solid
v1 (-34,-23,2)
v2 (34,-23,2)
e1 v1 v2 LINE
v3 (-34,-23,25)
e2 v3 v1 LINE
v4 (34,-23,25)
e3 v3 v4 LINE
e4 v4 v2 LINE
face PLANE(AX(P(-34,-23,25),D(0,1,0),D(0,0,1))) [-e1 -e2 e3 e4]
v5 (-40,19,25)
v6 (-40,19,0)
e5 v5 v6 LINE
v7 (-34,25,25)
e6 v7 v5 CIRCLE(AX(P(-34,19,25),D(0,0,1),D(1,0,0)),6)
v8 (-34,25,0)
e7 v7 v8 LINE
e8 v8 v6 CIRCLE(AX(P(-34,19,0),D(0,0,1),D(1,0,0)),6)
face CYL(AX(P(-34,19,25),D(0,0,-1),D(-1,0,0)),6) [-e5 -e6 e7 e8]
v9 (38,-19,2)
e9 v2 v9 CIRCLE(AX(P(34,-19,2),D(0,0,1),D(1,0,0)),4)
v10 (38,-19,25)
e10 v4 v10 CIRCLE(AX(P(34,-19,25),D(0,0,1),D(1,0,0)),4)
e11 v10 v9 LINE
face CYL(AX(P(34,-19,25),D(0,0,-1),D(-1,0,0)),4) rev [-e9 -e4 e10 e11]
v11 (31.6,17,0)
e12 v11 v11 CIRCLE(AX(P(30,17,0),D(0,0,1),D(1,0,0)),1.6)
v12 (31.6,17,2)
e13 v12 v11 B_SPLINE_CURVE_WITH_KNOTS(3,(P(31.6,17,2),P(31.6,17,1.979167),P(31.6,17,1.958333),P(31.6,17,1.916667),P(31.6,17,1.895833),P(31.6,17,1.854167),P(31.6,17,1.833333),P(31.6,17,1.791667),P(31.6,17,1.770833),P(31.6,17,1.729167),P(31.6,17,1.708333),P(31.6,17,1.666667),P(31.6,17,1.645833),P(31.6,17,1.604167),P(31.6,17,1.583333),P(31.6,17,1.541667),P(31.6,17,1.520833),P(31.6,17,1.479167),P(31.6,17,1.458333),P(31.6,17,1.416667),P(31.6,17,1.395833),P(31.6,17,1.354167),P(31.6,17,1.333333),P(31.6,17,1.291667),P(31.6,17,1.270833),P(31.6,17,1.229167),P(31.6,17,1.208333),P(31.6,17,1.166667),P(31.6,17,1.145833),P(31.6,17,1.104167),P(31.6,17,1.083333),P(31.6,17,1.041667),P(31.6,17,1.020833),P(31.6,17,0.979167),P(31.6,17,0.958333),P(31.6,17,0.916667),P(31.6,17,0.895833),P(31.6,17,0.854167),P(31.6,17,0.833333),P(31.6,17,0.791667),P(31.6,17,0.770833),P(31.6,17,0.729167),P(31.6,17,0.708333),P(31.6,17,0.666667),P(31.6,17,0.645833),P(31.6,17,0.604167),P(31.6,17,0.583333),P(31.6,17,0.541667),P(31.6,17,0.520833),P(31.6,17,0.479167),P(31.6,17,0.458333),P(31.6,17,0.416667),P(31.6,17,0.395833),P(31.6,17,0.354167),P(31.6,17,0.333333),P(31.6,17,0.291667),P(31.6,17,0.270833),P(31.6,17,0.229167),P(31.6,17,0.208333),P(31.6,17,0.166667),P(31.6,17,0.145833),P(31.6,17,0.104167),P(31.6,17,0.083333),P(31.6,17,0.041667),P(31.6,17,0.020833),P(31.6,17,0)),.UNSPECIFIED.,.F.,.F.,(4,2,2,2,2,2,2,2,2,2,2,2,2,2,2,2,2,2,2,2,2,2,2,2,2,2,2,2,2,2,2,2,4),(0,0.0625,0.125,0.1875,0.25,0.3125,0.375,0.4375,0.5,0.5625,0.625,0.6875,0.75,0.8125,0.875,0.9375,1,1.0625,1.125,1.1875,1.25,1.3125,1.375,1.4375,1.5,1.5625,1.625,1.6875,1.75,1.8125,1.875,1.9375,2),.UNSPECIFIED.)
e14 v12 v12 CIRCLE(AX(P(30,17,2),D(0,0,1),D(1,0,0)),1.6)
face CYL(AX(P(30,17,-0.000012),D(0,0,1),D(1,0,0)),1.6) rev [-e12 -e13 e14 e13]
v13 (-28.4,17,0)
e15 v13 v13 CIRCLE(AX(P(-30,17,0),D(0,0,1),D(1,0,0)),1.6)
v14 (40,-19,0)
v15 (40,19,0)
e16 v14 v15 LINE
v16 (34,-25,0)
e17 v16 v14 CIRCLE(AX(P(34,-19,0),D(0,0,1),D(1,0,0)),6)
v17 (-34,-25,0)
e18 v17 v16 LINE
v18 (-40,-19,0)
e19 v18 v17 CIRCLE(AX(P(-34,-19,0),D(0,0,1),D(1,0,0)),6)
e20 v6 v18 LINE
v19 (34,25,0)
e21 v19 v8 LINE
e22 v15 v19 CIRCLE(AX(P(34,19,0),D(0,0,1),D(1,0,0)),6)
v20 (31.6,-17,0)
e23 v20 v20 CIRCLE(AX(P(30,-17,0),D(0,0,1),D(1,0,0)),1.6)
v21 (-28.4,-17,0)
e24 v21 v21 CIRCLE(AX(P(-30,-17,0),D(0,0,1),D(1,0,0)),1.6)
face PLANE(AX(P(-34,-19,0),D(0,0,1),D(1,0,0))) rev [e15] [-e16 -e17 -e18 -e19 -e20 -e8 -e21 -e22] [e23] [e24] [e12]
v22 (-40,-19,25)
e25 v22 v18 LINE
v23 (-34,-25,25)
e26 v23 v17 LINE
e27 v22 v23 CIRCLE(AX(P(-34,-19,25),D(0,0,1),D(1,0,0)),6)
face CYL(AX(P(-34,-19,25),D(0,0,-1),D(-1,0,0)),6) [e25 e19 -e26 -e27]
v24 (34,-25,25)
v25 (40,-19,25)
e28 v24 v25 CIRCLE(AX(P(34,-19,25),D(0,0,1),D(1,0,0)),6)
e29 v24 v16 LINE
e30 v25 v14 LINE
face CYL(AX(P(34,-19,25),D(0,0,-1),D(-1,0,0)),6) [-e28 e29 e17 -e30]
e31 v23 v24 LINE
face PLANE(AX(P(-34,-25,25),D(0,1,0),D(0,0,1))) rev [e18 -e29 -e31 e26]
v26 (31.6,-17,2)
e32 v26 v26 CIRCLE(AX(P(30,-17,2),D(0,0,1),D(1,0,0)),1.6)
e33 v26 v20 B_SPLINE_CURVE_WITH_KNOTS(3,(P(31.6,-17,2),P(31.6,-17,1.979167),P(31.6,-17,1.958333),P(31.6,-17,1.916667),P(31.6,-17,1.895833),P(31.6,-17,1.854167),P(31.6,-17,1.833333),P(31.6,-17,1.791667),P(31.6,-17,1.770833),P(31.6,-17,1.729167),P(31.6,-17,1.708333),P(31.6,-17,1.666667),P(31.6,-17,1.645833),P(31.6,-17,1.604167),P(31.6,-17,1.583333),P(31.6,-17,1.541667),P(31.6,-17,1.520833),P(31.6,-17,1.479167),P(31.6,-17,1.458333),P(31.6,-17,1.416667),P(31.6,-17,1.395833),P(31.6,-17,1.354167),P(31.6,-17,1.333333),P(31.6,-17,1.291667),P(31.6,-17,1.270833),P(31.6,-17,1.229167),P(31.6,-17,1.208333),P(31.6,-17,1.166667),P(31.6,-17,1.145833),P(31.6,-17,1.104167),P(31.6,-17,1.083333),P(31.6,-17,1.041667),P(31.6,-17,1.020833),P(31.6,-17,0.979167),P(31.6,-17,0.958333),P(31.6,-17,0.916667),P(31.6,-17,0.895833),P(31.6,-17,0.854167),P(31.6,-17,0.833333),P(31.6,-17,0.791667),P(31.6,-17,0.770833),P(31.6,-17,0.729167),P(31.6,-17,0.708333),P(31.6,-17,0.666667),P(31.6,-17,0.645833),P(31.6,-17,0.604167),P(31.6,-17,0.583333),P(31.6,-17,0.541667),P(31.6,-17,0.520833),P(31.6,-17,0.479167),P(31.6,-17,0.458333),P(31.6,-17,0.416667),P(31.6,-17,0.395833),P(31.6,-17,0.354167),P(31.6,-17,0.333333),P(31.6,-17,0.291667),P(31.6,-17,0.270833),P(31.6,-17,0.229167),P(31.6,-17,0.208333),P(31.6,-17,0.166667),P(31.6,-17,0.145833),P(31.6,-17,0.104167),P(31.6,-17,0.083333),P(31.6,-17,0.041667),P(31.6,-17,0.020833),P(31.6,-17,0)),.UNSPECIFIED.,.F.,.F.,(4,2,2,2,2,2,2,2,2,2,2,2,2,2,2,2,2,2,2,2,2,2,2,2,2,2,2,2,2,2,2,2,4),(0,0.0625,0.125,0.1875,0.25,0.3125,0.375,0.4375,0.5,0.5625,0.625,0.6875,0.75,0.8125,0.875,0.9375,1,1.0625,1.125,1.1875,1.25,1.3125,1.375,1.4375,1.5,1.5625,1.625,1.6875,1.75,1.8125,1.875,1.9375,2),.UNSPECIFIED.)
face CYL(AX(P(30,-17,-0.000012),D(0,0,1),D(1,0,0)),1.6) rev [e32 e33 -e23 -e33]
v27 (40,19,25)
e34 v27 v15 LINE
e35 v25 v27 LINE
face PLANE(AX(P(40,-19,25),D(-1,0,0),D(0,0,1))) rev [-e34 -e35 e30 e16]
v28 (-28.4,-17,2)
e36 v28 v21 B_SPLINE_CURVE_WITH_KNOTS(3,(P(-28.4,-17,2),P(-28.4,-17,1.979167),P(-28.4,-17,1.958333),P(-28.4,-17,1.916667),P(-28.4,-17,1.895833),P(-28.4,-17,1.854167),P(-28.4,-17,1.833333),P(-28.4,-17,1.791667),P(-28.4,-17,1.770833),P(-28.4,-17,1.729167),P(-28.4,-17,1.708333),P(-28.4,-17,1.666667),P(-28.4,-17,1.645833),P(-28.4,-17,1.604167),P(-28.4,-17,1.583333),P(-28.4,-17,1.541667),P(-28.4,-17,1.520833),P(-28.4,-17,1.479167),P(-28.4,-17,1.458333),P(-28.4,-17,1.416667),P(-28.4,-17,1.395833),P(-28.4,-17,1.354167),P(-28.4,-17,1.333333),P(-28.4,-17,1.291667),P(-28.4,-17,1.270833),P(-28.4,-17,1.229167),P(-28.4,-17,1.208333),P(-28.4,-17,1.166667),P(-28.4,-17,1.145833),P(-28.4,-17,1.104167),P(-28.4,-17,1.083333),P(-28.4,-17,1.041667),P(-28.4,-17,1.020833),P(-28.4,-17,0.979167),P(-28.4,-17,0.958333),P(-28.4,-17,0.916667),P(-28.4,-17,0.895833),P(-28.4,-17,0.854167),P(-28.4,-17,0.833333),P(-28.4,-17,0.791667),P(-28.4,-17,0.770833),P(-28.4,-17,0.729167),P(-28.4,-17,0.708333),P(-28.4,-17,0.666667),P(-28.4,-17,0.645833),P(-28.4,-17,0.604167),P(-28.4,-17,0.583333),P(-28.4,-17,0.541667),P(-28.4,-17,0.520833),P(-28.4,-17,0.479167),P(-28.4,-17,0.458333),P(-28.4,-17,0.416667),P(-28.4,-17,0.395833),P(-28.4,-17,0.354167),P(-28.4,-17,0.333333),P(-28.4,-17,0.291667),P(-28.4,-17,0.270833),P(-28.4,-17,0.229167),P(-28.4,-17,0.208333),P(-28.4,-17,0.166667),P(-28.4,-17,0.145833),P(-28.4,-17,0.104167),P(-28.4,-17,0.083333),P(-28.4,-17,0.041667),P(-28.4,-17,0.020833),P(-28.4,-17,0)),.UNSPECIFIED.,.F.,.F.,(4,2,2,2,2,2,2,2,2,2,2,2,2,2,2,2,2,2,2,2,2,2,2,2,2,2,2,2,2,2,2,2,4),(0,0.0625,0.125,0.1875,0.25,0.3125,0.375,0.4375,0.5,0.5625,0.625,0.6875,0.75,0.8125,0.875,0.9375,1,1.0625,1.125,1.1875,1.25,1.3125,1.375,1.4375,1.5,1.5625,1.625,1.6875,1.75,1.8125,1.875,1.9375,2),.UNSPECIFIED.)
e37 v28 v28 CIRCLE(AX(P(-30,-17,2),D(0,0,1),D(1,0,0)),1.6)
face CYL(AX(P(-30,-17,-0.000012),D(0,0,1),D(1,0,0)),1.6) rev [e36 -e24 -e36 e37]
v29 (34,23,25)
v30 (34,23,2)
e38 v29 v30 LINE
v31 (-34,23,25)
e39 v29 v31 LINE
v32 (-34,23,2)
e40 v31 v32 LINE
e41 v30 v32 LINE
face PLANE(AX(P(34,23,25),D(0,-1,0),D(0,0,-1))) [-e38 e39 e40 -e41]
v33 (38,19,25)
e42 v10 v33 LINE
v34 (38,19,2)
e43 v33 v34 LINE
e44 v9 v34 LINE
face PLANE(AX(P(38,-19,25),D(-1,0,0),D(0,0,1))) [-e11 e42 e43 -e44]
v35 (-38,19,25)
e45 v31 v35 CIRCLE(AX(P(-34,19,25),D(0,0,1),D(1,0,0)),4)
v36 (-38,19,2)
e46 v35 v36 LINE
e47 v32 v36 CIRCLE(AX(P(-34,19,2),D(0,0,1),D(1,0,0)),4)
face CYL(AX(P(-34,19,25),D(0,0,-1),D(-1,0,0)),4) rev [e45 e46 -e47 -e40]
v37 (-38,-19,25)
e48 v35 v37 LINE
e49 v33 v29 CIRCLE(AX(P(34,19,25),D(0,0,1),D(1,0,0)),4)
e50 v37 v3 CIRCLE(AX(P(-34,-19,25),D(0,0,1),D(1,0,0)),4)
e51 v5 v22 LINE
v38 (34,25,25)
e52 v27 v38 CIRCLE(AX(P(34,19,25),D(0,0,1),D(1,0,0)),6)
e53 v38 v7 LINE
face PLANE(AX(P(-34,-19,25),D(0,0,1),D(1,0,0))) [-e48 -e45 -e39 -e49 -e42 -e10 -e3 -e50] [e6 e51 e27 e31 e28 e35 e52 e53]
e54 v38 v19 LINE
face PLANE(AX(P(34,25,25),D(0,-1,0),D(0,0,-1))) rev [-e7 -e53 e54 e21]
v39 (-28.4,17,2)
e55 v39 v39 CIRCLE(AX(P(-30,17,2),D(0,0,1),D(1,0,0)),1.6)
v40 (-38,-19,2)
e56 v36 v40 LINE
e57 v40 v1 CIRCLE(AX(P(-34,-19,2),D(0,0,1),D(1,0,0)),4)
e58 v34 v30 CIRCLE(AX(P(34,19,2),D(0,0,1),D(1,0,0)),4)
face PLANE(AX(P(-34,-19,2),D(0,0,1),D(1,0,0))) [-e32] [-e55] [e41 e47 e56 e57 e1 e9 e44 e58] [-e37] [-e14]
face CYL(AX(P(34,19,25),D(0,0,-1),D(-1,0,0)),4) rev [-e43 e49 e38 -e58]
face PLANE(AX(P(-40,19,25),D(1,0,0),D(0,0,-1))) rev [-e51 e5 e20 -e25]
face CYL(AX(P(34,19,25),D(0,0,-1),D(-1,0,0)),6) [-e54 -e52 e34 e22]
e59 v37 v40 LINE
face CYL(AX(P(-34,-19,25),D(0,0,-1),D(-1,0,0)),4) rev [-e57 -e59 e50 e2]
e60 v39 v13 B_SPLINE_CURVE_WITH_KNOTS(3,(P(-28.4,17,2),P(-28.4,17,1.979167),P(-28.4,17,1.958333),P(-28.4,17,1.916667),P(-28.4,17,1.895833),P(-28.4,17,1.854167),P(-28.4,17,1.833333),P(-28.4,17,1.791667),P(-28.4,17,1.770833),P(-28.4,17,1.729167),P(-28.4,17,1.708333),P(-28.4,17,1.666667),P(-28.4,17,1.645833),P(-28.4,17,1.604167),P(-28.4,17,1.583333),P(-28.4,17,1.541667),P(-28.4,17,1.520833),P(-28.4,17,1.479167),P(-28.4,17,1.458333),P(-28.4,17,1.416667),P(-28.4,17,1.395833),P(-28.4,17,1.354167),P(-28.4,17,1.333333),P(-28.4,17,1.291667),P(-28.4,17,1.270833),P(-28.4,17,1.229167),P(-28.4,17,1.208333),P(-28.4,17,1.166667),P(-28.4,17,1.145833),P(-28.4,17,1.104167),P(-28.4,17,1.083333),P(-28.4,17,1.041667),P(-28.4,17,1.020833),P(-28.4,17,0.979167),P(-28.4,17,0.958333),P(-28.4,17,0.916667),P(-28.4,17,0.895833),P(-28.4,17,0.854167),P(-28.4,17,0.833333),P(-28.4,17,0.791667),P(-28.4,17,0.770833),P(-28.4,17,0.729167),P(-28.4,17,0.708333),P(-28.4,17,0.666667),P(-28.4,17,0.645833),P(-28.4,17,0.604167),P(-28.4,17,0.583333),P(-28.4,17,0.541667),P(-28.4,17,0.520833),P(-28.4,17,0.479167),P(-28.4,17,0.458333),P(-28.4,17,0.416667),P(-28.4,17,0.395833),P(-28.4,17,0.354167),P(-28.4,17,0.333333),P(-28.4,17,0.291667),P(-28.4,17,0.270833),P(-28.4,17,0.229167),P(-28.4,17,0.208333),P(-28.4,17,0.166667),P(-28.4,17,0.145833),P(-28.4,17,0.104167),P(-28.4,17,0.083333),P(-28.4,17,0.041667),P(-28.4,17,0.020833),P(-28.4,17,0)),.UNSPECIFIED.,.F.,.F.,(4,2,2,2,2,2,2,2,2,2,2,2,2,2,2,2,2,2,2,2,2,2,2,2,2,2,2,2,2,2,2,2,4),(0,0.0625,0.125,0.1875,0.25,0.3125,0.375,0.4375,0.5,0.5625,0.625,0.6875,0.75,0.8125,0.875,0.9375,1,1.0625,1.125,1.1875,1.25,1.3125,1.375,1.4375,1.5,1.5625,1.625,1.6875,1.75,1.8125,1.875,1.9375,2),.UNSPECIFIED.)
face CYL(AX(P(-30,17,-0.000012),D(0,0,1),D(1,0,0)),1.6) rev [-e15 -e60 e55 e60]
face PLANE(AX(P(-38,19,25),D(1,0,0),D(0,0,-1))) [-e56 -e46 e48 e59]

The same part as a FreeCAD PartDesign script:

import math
import FreeCAD as App
import Part
import Sketcher


def faces_at(feature, points):
    """Names of the faces that lie closest to the given points."""
    faces = feature.Shape.Faces
    near = lambda p: min(range(len(faces)), key=lambda i: faces[i].distToShape(Part.Vertex(*p))[0])
    return sorted({f"Face{near(p) + 1}" for p in points})

doc = App.newDocument("Part")
body = doc.addObject("PartDesign::Body", "Body")

sketch1 = body.newObject("Sketcher::SketchObject", "Sketch")
sketch1.AttachmentSupport = (doc.getObject("XY_Plane"), [""])
sketch1.MapMode = "FlatFace"
sketch1.addGeometry([
    Part.LineSegment(App.Vector(-34, -25, 0), App.Vector(34, -25, 0)),
    Part.ArcOfCircle(Part.Circle(App.Vector(34, -19, 0), App.Vector(0, 0, 1), 6), math.radians(-90), math.radians(0)),
    Part.LineSegment(App.Vector(40, -19, 0), App.Vector(40, 19, 0)),
    Part.ArcOfCircle(Part.Circle(App.Vector(34, 19, 0), App.Vector(0, 0, 1), 6), math.radians(0), math.radians(90)),
    Part.LineSegment(App.Vector(34, 25, 0), App.Vector(-34, 25, 0)),
    Part.ArcOfCircle(Part.Circle(App.Vector(-34, 19, 0), App.Vector(0, 0, 1), 6), math.radians(90), math.radians(180)),
    Part.LineSegment(App.Vector(-40, 19, 0), App.Vector(-40, -19, 0)),
    Part.ArcOfCircle(Part.Circle(App.Vector(-34, -19, 0), App.Vector(0, 0, 1), 6), math.radians(180), math.radians(270)),
], False)
sketch1.addConstraint([
    Sketcher.Constraint("Tangent", 0, 2, 1, 1),
    Sketcher.Constraint("Tangent", 1, 2, 2, 1),
    Sketcher.Constraint("Tangent", 2, 2, 3, 1),
    Sketcher.Constraint("Tangent", 3, 2, 4, 1),
    Sketcher.Constraint("Tangent", 4, 2, 5, 1),
    Sketcher.Constraint("Tangent", 5, 2, 6, 1),
    Sketcher.Constraint("Tangent", 6, 2, 7, 1),
    Sketcher.Constraint("Tangent", 7, 2, 0, 1),
    Sketcher.Constraint("Horizontal", 0),
    Sketcher.Constraint("Vertical", 2),
    Sketcher.Constraint("Horizontal", 4),
    Sketcher.Constraint("Vertical", 6),
    Sketcher.Constraint("Equal", 1, 3),
    Sketcher.Constraint("Equal", 3, 5),
    Sketcher.Constraint("Equal", 5, 7),
    Sketcher.Constraint("Symmetric", 1, 3, 5, 3, -1, 1),
    Sketcher.Constraint("Radius", 1, 6.0),
    Sketcher.Constraint("DistanceX", 0, 1, 0, 2, 68.0),
    Sketcher.Constraint("DistanceY", 2, 1, 2, 2, 38.0),
])
pad1 = body.newObject("PartDesign::Pad", "Pad")
pad1.Profile = sketch1
pad1.Length = 25
doc.recompute()

thickness = body.newObject("PartDesign::Thickness", "Thickness")
thickness.Base = (pad1, faces_at(pad1, [(0, 0, 25)]))
thickness.Value = 2
thickness.Reversed = True
thickness.Join = "Intersection"

sketch2 = body.newObject("Sketcher::SketchObject", "Sketch001")
sketch2.AttachmentSupport = (doc.getObject("XY_Plane"), [""])
sketch2.MapMode = "FlatFace"
sketch2.addGeometry([
    Part.Circle(App.Vector(-30, -17, 0), App.Vector(0, 0, 1), 1.6),
    Part.Circle(App.Vector(-30, 17, 0), App.Vector(0, 0, 1), 1.6),
    Part.Circle(App.Vector(30, -17, 0), App.Vector(0, 0, 1), 1.6),
    Part.Circle(App.Vector(30, 17, 0), App.Vector(0, 0, 1), 1.6),
], False)
sketch2.addConstraint([
    Sketcher.Constraint("Equal", 0, 1),
    Sketcher.Constraint("Equal", 1, 2),
    Sketcher.Constraint("Equal", 2, 3),
    Sketcher.Constraint("Symmetric", 1, 3, 2, 3, -1, 1),
    Sketcher.Constraint("Symmetric", 0, 3, 3, 3, -1, 1),
    Sketcher.Constraint("Symmetric", 0, 3, 2, 3, -2),
    Sketcher.Constraint("Diameter", 0, 3.2),
    Sketcher.Constraint("DistanceX", 0, 3, -1, 1, 30.0),
    Sketcher.Constraint("DistanceY", 0, 3, -1, 1, 17.0),
])
pocket1 = body.newObject("PartDesign::Pocket", "Pocket")
pocket1.Profile = sketch2
pocket1.Type = "ThroughAll"
pocket1.Midplane = True

doc.recompute()
